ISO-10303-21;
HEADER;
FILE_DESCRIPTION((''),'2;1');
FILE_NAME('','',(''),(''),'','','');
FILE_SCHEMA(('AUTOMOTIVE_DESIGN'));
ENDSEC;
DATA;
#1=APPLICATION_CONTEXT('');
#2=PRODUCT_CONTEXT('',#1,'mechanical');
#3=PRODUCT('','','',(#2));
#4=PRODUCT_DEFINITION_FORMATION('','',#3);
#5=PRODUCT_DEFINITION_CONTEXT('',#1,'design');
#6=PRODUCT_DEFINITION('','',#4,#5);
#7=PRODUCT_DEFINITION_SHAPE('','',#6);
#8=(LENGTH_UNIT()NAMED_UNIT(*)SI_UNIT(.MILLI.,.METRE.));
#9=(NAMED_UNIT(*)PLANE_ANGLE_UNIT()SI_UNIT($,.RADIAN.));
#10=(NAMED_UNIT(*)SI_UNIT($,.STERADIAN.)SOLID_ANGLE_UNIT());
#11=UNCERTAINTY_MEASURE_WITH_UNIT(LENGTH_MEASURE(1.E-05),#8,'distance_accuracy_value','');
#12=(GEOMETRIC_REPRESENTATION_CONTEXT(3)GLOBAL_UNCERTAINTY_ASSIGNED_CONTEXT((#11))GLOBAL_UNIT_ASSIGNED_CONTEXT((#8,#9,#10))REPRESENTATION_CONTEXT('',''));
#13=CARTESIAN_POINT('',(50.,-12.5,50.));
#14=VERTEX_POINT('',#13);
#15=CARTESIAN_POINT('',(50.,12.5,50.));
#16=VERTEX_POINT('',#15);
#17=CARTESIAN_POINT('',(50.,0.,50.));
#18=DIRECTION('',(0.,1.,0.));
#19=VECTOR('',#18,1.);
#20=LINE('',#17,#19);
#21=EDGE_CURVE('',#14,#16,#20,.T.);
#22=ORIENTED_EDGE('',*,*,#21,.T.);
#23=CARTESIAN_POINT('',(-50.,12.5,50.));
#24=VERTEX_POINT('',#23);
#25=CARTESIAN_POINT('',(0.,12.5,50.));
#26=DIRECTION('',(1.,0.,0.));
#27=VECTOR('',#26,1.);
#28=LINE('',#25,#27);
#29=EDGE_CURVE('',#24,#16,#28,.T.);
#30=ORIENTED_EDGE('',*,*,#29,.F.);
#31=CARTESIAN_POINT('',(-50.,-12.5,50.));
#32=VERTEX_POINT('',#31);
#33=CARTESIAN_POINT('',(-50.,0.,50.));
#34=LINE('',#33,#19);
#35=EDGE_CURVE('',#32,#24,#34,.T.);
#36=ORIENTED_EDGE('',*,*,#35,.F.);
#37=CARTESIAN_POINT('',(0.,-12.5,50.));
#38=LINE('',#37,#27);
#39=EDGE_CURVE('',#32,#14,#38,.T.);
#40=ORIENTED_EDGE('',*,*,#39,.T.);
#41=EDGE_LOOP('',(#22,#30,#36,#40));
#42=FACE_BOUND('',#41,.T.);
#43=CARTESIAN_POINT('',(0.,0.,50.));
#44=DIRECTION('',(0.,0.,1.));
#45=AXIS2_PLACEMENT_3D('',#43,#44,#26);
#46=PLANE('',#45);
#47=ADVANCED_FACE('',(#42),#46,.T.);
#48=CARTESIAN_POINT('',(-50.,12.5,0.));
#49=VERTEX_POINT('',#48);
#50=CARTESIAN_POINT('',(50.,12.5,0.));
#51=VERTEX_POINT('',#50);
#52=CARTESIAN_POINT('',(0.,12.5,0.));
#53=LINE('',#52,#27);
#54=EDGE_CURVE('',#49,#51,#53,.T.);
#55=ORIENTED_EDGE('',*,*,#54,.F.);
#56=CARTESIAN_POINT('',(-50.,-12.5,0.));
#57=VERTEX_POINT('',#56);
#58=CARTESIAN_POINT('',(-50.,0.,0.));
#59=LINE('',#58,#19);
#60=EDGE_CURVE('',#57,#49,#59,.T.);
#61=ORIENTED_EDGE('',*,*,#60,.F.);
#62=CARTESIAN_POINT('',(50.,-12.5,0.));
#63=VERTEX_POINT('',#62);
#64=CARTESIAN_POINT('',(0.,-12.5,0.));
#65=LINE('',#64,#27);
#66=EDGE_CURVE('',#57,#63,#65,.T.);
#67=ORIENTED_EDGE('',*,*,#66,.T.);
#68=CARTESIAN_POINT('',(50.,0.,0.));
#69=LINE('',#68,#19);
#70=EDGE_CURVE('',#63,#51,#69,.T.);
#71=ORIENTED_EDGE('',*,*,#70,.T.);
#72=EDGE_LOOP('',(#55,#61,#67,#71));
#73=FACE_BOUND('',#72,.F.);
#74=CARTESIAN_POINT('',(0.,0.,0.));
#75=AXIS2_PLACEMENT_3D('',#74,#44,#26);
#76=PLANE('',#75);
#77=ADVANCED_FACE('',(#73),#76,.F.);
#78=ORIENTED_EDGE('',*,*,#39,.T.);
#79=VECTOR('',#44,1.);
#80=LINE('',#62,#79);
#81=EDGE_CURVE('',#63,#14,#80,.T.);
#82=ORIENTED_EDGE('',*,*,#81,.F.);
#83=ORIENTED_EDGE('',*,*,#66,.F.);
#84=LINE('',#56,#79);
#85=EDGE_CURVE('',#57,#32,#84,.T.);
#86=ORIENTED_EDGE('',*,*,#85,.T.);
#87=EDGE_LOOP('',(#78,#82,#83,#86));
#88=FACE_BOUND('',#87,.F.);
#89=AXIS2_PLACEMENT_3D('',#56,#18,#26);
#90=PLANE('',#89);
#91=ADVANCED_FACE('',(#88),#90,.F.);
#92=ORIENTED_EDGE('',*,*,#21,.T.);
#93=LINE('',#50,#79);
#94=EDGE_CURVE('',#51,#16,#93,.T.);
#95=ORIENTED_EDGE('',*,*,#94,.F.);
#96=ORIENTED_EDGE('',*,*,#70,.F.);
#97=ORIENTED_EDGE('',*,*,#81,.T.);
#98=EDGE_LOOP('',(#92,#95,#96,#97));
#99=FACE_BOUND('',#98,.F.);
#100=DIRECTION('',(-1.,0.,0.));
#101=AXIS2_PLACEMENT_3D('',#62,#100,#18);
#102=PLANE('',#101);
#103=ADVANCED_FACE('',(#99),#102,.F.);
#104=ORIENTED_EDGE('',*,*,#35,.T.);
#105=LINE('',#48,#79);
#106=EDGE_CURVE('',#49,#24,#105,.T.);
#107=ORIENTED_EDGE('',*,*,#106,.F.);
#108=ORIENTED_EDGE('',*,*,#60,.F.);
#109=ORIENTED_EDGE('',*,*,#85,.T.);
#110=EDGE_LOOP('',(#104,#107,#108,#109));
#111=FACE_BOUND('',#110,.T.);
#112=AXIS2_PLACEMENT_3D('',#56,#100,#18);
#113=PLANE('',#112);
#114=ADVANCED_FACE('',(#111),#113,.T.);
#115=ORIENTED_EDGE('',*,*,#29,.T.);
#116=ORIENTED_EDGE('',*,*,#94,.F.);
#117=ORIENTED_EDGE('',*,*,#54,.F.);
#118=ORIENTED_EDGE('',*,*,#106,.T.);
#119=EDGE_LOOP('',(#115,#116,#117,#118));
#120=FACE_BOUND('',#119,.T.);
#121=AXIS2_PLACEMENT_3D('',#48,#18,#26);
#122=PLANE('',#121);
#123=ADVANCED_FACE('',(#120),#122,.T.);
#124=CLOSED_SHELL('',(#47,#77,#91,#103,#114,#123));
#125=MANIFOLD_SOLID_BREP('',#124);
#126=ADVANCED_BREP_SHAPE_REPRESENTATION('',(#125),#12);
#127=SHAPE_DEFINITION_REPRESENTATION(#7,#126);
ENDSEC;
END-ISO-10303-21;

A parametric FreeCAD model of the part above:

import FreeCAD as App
import Part
import Sketcher

V = App.Vector

doc = App.newDocument("Part")
body = doc.addObject("PartDesign::Body", "Body")

sketch1 = doc.addObject("Sketcher::SketchObject", "Sketch")
body.addObject(sketch1)
sketch1.AttachmentSupport = (doc.XY_Plane, [""])
sketch1.MapMode = "FlatFace"
sketch1.addGeometry(Part.LineSegment(V(-50, 12, 0), V(-50, -12, 0)), False)
sketch1.addGeometry(Part.LineSegment(V(-50, -12, 0), V(50, -12, 0)), False)
sketch1.addGeometry(Part.LineSegment(V(50, -12, 0), V(50, 12, 0)), False)
sketch1.addGeometry(Part.LineSegment(V(50, 12, 0), V(-50, 12, 0)), False)
sketch1.addConstraint(Sketcher.Constraint("Coincident", 0, 2, 1, 1))
sketch1.addConstraint(Sketcher.Constraint("Coincident", 1, 2, 2, 1))
sketch1.addConstraint(Sketcher.Constraint("Coincident", 2, 2, 3, 1))
sketch1.addConstraint(Sketcher.Constraint("Coincident", 3, 2, 0, 1))
sketch1.addConstraint(Sketcher.Constraint("Vertical", 0))
sketch1.addConstraint(Sketcher.Constraint("Horizontal", 1))
sketch1.addConstraint(Sketcher.Constraint("Vertical", 2))
sketch1.addConstraint(Sketcher.Constraint("Horizontal", 3))
sketch1.addConstraint(Sketcher.Constraint("Symmetric", 0, 2, 2, 2, -1, 1))
sketch1.addConstraint(Sketcher.Constraint("DistanceX", 1, 1, 1, 2, 100.0))
sketch1.addConstraint(Sketcher.Constraint("DistanceY", 0, 2, 0, 1, 25.0))
pad1 = doc.addObject("PartDesign::Pad", "Pad")
body.addObject(pad1)
pad1.Profile = sketch1
pad1.Length = 50

doc.recompute()
